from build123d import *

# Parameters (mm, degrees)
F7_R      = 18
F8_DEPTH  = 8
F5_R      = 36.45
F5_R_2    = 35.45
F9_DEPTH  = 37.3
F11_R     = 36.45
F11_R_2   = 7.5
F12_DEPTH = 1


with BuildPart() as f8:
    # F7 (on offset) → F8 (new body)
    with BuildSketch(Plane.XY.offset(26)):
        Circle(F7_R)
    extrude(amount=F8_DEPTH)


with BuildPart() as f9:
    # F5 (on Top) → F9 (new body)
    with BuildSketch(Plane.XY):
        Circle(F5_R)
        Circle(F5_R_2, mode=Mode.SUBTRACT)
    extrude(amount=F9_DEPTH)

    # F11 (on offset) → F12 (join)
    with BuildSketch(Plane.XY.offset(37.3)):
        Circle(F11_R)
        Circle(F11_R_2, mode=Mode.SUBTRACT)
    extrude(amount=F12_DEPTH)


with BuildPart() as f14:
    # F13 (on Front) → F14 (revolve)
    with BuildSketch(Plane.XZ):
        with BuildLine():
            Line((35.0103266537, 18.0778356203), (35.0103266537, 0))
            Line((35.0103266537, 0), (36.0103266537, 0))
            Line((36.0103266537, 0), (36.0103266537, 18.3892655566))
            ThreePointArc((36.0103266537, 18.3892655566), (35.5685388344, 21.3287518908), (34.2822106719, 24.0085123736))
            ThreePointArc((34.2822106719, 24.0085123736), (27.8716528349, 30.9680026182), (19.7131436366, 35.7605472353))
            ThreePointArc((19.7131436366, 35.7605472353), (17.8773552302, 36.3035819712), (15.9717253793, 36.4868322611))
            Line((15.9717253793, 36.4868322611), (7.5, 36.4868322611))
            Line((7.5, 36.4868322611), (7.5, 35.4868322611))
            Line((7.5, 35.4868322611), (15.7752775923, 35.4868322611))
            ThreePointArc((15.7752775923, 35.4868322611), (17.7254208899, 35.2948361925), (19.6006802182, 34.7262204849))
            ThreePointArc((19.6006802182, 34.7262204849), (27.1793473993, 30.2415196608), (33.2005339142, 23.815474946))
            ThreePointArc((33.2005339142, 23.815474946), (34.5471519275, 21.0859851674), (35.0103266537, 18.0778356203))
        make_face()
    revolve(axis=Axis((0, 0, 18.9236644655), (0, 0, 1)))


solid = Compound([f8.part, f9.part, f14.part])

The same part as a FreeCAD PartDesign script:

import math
import FreeCAD as App
import Part
import Sketcher

V = App.Vector

doc = App.newDocument("Part")
body = doc.addObject("PartDesign::Body", "Body")

# Sketch on XY plane
sketch1 = body.newObject("Sketcher::SketchObject", "Sketch")
sketch1.AttachmentSupport = (doc.getObject("XY_Plane"), [""])
sketch1.MapMode = "FlatFace"
sketch1.AttachmentOffset = App.Placement(V(0, 0, 26), App.Rotation())
sketch1.addGeometry(Part.Circle(V(0, 0, 0), V(0, 0, 1), 18), False)
sketch1.addConstraint([
    Sketcher.Constraint("Coincident", 0, 3, -1, 1),
    Sketcher.Constraint("Diameter", 0, 36.0),
])
pad1 = body.newObject("PartDesign::Pad", "Pad")
pad1.Profile = sketch1
pad1.Length = 8
body2 = doc.addObject("PartDesign::Body", "Body001")

# Sketch on XY plane
sketch2 = body2.newObject("Sketcher::SketchObject", "Sketch001")
sketch2.AttachmentSupport = (doc.getObject("XY_Plane001"), [""])
sketch2.MapMode = "FlatFace"
sketch2.addGeometry([
    Part.Circle(V(0, 0, 0), V(0, 0, 1), 36),
    Part.Circle(V(0, 0, 0), V(0, 0, 1), 35),
], False)
sketch2.addConstraint([
    Sketcher.Constraint("Coincident", 0, 3, -1, 1),
    Sketcher.Constraint("Coincident", 1, 3, -1, 1),
    Sketcher.Constraint("Diameter", 0, 72.9),
    Sketcher.Constraint("Diameter", 1, 70.9),
])
pad2 = body2.newObject("PartDesign::Pad", "Pad001")
pad2.Profile = sketch2
pad2.Length = 37.3

# Sketch on XY plane
sketch3 = body2.newObject("Sketcher::SketchObject", "Sketch002")
sketch3.AttachmentSupport = (doc.getObject("XY_Plane001"), [""])
sketch3.MapMode = "FlatFace"
sketch3.AttachmentOffset = App.Placement(V(0, 0, 37.3), App.Rotation())
sketch3.addGeometry([
    Part.Circle(V(0, 0, 0), V(0, 0, 1), 36),
    Part.Circle(V(0, 0, 0), V(0, 0, 1), 8),
], False)
sketch3.addConstraint([
    Sketcher.Constraint("Coincident", 0, 3, -1, 1),
    Sketcher.Constraint("Coincident", 1, 3, -1, 1),
    Sketcher.Constraint("Diameter", 1, 15.0),
    Sketcher.Constraint("Diameter", 0, 72.9),
])
pad3 = body2.newObject("PartDesign::Pad", "Pad002")
pad3.Profile = sketch3
pad3.Length = 1
body3 = doc.addObject("PartDesign::Body", "Body002")

# Sketch on XZ plane
sketch4 = body3.newObject("Sketcher::SketchObject", "Sketch003")
sketch4.AttachmentSupport = (doc.getObject("XZ_Plane002"), [""])
sketch4.MapMode = "FlatFace"
sketch4.addGeometry([
    Part.LineSegment(V(35.010327, 18.077836, 0), V(35.010327, 0, 0)),  # 0
    Part.LineSegment(V(35.010327, 0, 0), V(36.010327, 0, 0)),  # 1
    Part.LineSegment(V(36.010327, 0, 0), V(36.010327, 18.389266, 0)),  # 2
    Part.ArcOfCircle(Part.Circle(V(26.010327, 18.389266, 0), V(0, 0, 1), 10), math.radians(0), math.radians(34.189007)),  # 3
    Part.ArcOfCircle(Part.Circle(V(7.681495, 5.938144, 0), V(0, 0, 1), 32.157989), math.radians(34.189007), math.radians(68.028718)),  # 4
    Part.ArcOfCircle(Part.Circle(V(15.971725, 26.486832, 0), V(0, 0, 1), 10), math.radians(68.028718), math.radians(90)),  # 5
    Part.LineSegment(V(15.971725, 36.486832, 0), V(7.5, 36.486832, 0)),  # 6
    Part.LineSegment(V(7.5, 36.486832, 0), V(7.5, 35.486832, 0)),  # 7
    Part.LineSegment(V(7.5, 35.486832, 0), V(15.775278, 35.486832, 0)),  # 8
    Part.ArcOfCircle(Part.Circle(V(15.775278, 25.486832, 0), V(0, 0, 1), 10), math.radians(67.508879), math.radians(90)),  # 9
    Part.ArcOfCircle(Part.Circle(V(7.681495, 5.938144, 0), V(0, 0, 1), 31.157989), math.radians(35.013116), math.radians(67.508879)),  # 10
    Part.ArcOfCircle(Part.Circle(V(25.010327, 18.077836, 0), V(0, 0, 1), 10), math.radians(0), math.radians(35.013116)),  # 11
], False)
sketch4.addConstraint([
    Sketcher.Constraint("Coincident", 0, 2, 1, 1),
    Sketcher.Constraint("Coincident", 1, 2, 2, 1),
    Sketcher.Constraint("Coincident", 2, 2, 3, 1),
    Sketcher.Constraint("Coincident", 3, 2, 4, 1),
    Sketcher.Constraint("Coincident", 4, 2, 5, 1),
    Sketcher.Constraint("Coincident", 5, 2, 6, 1),
    Sketcher.Constraint("Coincident", 6, 2, 7, 1),
    Sketcher.Constraint("Coincident", 7, 2, 8, 1),
    Sketcher.Constraint("Coincident", 8, 2, 9, 2),
    Sketcher.Constraint("Coincident", 9, 1, 10, 2),
    Sketcher.Constraint("Coincident", 10, 1, 11, 2),
    Sketcher.Constraint("Coincident", 11, 1, 0, 1),
    Sketcher.Constraint("Vertical", 0),
    Sketcher.Constraint("Horizontal", 1),
    Sketcher.Constraint("Vertical", 2),
    Sketcher.Constraint("Horizontal", 6),
    Sketcher.Constraint("Vertical", 7),
    Sketcher.Constraint("Horizontal", 8),
    Sketcher.Constraint("Coincident", 10, 3, 4, 3),
    Sketcher.Constraint("PointOnObject", 0, 2, -1),
    Sketcher.Constraint("Radius", 3, 10.0),
    Sketcher.Constraint("Radius", 5, 10.0),
    Sketcher.Constraint("Radius", 9, 10.0),
    Sketcher.Constraint("Radius", 11, 10.0),
    Sketcher.Constraint("DistanceX", 1, 1, 1, 2, 1.0),
    Sketcher.Constraint("DistanceY", 7, 2, 7, 1, 1.0),
    Sketcher.Constraint("DistanceX", -1, 1, 6, 2, 7.5),
    Sketcher.Constraint("Radius", 4, 32.157989),
    Sketcher.Constraint("Radius", 10, 31.157989),
    Sketcher.Constraint("DistanceX", 5, 3, 3, 3, 10.038601),
    Sketcher.Constraint("DistanceX", 5, 2, 11, 3, 9.038601),
    Sketcher.Constraint("DistanceX", 6, 2, 6, 1, 8.471725),
    Sketcher.Constraint("DistanceX", 8, 1, 8, 2, 8.275278),
    Sketcher.Constraint("DistanceY", 0, 2, 0, 1, 18.077836),
    Sketcher.Constraint("DistanceY", 2, 1, 2, 2, 18.389266),
    Sketcher.Constraint("DistanceX", -1, 1, 3, 2, 34.282211),
    Sketcher.Constraint("DistanceX", -1, 1, 9, 1, 19.60068),
    Sketcher.Constraint("DistanceY", -1, 1, 9, 1, 34.72622),
    Sketcher.Constraint("DistanceX", 4, 3, 3, 3, 18.328832),
    Sketcher.Constraint("DistanceX", 5, 3, 4, 2, 3.741418),
    Sketcher.Constraint("DistanceY", 2, 2, 10, 1, 5.426209),
])
revolution = body3.newObject("PartDesign::Revolution", "Revolution")
revolution.Profile = sketch4
revolution.ReferenceAxis = (sketch4, ["V_Axis"])
revolution.Angle = 360

doc.recompute()
